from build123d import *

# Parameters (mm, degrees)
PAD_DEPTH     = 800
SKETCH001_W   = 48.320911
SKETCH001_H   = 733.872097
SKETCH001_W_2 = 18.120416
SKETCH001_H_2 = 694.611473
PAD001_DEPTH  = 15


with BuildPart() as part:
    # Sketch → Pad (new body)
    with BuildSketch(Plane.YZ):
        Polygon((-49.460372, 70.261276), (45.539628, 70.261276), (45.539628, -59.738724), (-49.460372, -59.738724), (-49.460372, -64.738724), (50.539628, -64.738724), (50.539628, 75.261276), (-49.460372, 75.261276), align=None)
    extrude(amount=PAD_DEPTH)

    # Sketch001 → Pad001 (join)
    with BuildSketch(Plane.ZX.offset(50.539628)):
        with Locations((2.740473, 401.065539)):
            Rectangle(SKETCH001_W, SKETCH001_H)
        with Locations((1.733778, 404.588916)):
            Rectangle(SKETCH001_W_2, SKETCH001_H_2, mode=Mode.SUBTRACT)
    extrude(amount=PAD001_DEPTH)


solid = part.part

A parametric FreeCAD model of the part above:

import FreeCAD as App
import Part
import Sketcher
Q = App.Units.Quantity

doc = App.newDocument("Part")
body = doc.addObject("PartDesign::Body", "Body")

sketch1 = body.newObject("Sketcher::SketchObject", "Sketch")
sketch1.AttachmentSupport = (doc.getObject("YZ_Plane"), [""])
sketch1.MapMode = "FlatFace"
sketch1.addGeometry([
    Part.LineSegment(App.Vector(-49, 70, 0), App.Vector(46, 70, 0)),
    Part.LineSegment(App.Vector(46, 70, 0), App.Vector(46, -60, 0)),
    Part.LineSegment(App.Vector(46, -60, 0), App.Vector(-49, -60, 0)),
    Part.LineSegment(App.Vector(-49, -60, 0), App.Vector(-49, -65, 0)),
    Part.LineSegment(App.Vector(-49, -65, 0), App.Vector(51, -65, 0)),
    Part.LineSegment(App.Vector(51, -65, 0), App.Vector(51, 75, 0)),
    Part.LineSegment(App.Vector(51, 75, 0), App.Vector(-49, 75, 0)),
    Part.LineSegment(App.Vector(-49, 75, 0), App.Vector(-49, 70, 0)),
], False)
sketch1.addConstraint([
    Sketcher.Constraint("Coincident", 0, 2, 1, 1),
    Sketcher.Constraint("Coincident", 1, 2, 2, 1),
    Sketcher.Constraint("Coincident", 2, 2, 3, 1),
    Sketcher.Constraint("Coincident", 3, 2, 4, 1),
    Sketcher.Constraint("Coincident", 4, 2, 5, 1),
    Sketcher.Constraint("Coincident", 5, 2, 6, 1),
    Sketcher.Constraint("Coincident", 6, 2, 7, 1),
    Sketcher.Constraint("Coincident", 7, 2, 0, 1),
    Sketcher.Constraint("Horizontal", 0),
    Sketcher.Constraint("Vertical", 1),
    Sketcher.Constraint("Horizontal", 2),
    Sketcher.Constraint("Vertical", 3),
    Sketcher.Constraint("Horizontal", 4),
    Sketcher.Constraint("Vertical", 5),
    Sketcher.Constraint("Horizontal", 6),
    Sketcher.Constraint("Vertical", 7),
    Sketcher.Constraint("Vertical", 3, 2, 6, 2),
    Sketcher.Constraint("Equal", 3, 7),
    Sketcher.Constraint("DistanceX", 0, 1, 0, 2, Q("95 mm")),
    Sketcher.Constraint("DistanceX", 4, 1, 4, 2, Q("100 mm")),
    Sketcher.Constraint("DistanceY", 1, 2, 1, 1, Q("130 mm")),
    Sketcher.Constraint("DistanceY", 3, 2, 3, 1, Q("5 mm")),
    Sketcher.Constraint("DistanceX", -1, 1, 0, 2, Q("45.539628 mm")),
    Sketcher.Constraint("DistanceY", -1, 1, 0, 2, Q("70.261276 mm")),
])
pad1 = body.newObject("PartDesign::Pad", "Pad")
pad1.Profile = sketch1
pad1.Length = 800

sketch2 = body.newObject("Sketcher::SketchObject", "Sketch001")
sketch2.AttachmentSupport = (doc.getObject("XZ_Plane"), [""])
sketch2.MapMode = "FlatFace"
sketch2.AttachmentOffset = App.Placement(App.Vector(0, 0, -50.539628), App.Rotation())
sketch2.addGeometry([
    Part.LineSegment(App.Vector(768, -21, 0), App.Vector(34, -21, 0)),
    Part.LineSegment(App.Vector(34, -21, 0), App.Vector(34, 27, 0)),
    Part.LineSegment(App.Vector(34, 27, 0), App.Vector(768, 27, 0)),
    Part.LineSegment(App.Vector(768, 27, 0), App.Vector(768, -21, 0)),
    Part.LineSegment(App.Vector(57, 11, 0), App.Vector(57, -7, 0)),
    Part.LineSegment(App.Vector(57, -7, 0), App.Vector(752, -7, 0)),
    Part.LineSegment(App.Vector(752, -7, 0), App.Vector(752, 11, 0)),
    Part.LineSegment(App.Vector(752, 11, 0), App.Vector(57, 11, 0)),
], False)
sketch2.addConstraint([
    Sketcher.Constraint("Coincident", 0, 2, 1, 1),
    Sketcher.Constraint("Coincident", 1, 2, 2, 1),
    Sketcher.Constraint("Coincident", 2, 2, 3, 1),
    Sketcher.Constraint("Coincident", 3, 2, 0, 1),
    Sketcher.Constraint("Coincident", 4, 2, 5, 1),
    Sketcher.Constraint("Coincident", 5, 2, 6, 1),
    Sketcher.Constraint("Coincident", 6, 2, 7, 1),
    Sketcher.Constraint("Coincident", 7, 2, 4, 1),
    Sketcher.Constraint("Horizontal", 0),
    Sketcher.Constraint("Vertical", 1),
    Sketcher.Constraint("Horizontal", 2),
    Sketcher.Constraint("Vertical", 3),
    Sketcher.Constraint("Vertical", 4),
    Sketcher.Constraint("Horizontal", 5),
    Sketcher.Constraint("Vertical", 6),
    Sketcher.Constraint("Horizontal", 7),
    Sketcher.Constraint("DistanceY", 1, 1, 1, 2, Q("48.320911 mm")),
    Sketcher.Constraint("DistanceX", 0, 2, 0, 1, Q("733.872097 mm")),
    Sketcher.Constraint("DistanceX", 5, 1, 5, 2, Q("694.611473 mm")),
    Sketcher.Constraint("DistanceY", 4, 2, 4, 1, Q("18.120416 mm")),
    Sketcher.Constraint("DistanceX", -1, 1, 0, 2, Q("34.129491 mm")),
    Sketcher.Constraint("DistanceY", -1, 1, 1, 2, Q("26.900928 mm")),
    Sketcher.Constraint("DistanceX", -1, 1, 4, 2, Q("57.28318 mm")),
    Sketcher.Constraint("DistanceY", 4, 2, -1, 1, Q("7.32643 mm")),
])
pad2 = body.newObject("PartDesign::Pad", "Pad001")
pad2.Profile = sketch2
pad2.Length = 15
pad2.Reversed = True

doc.recompute()
